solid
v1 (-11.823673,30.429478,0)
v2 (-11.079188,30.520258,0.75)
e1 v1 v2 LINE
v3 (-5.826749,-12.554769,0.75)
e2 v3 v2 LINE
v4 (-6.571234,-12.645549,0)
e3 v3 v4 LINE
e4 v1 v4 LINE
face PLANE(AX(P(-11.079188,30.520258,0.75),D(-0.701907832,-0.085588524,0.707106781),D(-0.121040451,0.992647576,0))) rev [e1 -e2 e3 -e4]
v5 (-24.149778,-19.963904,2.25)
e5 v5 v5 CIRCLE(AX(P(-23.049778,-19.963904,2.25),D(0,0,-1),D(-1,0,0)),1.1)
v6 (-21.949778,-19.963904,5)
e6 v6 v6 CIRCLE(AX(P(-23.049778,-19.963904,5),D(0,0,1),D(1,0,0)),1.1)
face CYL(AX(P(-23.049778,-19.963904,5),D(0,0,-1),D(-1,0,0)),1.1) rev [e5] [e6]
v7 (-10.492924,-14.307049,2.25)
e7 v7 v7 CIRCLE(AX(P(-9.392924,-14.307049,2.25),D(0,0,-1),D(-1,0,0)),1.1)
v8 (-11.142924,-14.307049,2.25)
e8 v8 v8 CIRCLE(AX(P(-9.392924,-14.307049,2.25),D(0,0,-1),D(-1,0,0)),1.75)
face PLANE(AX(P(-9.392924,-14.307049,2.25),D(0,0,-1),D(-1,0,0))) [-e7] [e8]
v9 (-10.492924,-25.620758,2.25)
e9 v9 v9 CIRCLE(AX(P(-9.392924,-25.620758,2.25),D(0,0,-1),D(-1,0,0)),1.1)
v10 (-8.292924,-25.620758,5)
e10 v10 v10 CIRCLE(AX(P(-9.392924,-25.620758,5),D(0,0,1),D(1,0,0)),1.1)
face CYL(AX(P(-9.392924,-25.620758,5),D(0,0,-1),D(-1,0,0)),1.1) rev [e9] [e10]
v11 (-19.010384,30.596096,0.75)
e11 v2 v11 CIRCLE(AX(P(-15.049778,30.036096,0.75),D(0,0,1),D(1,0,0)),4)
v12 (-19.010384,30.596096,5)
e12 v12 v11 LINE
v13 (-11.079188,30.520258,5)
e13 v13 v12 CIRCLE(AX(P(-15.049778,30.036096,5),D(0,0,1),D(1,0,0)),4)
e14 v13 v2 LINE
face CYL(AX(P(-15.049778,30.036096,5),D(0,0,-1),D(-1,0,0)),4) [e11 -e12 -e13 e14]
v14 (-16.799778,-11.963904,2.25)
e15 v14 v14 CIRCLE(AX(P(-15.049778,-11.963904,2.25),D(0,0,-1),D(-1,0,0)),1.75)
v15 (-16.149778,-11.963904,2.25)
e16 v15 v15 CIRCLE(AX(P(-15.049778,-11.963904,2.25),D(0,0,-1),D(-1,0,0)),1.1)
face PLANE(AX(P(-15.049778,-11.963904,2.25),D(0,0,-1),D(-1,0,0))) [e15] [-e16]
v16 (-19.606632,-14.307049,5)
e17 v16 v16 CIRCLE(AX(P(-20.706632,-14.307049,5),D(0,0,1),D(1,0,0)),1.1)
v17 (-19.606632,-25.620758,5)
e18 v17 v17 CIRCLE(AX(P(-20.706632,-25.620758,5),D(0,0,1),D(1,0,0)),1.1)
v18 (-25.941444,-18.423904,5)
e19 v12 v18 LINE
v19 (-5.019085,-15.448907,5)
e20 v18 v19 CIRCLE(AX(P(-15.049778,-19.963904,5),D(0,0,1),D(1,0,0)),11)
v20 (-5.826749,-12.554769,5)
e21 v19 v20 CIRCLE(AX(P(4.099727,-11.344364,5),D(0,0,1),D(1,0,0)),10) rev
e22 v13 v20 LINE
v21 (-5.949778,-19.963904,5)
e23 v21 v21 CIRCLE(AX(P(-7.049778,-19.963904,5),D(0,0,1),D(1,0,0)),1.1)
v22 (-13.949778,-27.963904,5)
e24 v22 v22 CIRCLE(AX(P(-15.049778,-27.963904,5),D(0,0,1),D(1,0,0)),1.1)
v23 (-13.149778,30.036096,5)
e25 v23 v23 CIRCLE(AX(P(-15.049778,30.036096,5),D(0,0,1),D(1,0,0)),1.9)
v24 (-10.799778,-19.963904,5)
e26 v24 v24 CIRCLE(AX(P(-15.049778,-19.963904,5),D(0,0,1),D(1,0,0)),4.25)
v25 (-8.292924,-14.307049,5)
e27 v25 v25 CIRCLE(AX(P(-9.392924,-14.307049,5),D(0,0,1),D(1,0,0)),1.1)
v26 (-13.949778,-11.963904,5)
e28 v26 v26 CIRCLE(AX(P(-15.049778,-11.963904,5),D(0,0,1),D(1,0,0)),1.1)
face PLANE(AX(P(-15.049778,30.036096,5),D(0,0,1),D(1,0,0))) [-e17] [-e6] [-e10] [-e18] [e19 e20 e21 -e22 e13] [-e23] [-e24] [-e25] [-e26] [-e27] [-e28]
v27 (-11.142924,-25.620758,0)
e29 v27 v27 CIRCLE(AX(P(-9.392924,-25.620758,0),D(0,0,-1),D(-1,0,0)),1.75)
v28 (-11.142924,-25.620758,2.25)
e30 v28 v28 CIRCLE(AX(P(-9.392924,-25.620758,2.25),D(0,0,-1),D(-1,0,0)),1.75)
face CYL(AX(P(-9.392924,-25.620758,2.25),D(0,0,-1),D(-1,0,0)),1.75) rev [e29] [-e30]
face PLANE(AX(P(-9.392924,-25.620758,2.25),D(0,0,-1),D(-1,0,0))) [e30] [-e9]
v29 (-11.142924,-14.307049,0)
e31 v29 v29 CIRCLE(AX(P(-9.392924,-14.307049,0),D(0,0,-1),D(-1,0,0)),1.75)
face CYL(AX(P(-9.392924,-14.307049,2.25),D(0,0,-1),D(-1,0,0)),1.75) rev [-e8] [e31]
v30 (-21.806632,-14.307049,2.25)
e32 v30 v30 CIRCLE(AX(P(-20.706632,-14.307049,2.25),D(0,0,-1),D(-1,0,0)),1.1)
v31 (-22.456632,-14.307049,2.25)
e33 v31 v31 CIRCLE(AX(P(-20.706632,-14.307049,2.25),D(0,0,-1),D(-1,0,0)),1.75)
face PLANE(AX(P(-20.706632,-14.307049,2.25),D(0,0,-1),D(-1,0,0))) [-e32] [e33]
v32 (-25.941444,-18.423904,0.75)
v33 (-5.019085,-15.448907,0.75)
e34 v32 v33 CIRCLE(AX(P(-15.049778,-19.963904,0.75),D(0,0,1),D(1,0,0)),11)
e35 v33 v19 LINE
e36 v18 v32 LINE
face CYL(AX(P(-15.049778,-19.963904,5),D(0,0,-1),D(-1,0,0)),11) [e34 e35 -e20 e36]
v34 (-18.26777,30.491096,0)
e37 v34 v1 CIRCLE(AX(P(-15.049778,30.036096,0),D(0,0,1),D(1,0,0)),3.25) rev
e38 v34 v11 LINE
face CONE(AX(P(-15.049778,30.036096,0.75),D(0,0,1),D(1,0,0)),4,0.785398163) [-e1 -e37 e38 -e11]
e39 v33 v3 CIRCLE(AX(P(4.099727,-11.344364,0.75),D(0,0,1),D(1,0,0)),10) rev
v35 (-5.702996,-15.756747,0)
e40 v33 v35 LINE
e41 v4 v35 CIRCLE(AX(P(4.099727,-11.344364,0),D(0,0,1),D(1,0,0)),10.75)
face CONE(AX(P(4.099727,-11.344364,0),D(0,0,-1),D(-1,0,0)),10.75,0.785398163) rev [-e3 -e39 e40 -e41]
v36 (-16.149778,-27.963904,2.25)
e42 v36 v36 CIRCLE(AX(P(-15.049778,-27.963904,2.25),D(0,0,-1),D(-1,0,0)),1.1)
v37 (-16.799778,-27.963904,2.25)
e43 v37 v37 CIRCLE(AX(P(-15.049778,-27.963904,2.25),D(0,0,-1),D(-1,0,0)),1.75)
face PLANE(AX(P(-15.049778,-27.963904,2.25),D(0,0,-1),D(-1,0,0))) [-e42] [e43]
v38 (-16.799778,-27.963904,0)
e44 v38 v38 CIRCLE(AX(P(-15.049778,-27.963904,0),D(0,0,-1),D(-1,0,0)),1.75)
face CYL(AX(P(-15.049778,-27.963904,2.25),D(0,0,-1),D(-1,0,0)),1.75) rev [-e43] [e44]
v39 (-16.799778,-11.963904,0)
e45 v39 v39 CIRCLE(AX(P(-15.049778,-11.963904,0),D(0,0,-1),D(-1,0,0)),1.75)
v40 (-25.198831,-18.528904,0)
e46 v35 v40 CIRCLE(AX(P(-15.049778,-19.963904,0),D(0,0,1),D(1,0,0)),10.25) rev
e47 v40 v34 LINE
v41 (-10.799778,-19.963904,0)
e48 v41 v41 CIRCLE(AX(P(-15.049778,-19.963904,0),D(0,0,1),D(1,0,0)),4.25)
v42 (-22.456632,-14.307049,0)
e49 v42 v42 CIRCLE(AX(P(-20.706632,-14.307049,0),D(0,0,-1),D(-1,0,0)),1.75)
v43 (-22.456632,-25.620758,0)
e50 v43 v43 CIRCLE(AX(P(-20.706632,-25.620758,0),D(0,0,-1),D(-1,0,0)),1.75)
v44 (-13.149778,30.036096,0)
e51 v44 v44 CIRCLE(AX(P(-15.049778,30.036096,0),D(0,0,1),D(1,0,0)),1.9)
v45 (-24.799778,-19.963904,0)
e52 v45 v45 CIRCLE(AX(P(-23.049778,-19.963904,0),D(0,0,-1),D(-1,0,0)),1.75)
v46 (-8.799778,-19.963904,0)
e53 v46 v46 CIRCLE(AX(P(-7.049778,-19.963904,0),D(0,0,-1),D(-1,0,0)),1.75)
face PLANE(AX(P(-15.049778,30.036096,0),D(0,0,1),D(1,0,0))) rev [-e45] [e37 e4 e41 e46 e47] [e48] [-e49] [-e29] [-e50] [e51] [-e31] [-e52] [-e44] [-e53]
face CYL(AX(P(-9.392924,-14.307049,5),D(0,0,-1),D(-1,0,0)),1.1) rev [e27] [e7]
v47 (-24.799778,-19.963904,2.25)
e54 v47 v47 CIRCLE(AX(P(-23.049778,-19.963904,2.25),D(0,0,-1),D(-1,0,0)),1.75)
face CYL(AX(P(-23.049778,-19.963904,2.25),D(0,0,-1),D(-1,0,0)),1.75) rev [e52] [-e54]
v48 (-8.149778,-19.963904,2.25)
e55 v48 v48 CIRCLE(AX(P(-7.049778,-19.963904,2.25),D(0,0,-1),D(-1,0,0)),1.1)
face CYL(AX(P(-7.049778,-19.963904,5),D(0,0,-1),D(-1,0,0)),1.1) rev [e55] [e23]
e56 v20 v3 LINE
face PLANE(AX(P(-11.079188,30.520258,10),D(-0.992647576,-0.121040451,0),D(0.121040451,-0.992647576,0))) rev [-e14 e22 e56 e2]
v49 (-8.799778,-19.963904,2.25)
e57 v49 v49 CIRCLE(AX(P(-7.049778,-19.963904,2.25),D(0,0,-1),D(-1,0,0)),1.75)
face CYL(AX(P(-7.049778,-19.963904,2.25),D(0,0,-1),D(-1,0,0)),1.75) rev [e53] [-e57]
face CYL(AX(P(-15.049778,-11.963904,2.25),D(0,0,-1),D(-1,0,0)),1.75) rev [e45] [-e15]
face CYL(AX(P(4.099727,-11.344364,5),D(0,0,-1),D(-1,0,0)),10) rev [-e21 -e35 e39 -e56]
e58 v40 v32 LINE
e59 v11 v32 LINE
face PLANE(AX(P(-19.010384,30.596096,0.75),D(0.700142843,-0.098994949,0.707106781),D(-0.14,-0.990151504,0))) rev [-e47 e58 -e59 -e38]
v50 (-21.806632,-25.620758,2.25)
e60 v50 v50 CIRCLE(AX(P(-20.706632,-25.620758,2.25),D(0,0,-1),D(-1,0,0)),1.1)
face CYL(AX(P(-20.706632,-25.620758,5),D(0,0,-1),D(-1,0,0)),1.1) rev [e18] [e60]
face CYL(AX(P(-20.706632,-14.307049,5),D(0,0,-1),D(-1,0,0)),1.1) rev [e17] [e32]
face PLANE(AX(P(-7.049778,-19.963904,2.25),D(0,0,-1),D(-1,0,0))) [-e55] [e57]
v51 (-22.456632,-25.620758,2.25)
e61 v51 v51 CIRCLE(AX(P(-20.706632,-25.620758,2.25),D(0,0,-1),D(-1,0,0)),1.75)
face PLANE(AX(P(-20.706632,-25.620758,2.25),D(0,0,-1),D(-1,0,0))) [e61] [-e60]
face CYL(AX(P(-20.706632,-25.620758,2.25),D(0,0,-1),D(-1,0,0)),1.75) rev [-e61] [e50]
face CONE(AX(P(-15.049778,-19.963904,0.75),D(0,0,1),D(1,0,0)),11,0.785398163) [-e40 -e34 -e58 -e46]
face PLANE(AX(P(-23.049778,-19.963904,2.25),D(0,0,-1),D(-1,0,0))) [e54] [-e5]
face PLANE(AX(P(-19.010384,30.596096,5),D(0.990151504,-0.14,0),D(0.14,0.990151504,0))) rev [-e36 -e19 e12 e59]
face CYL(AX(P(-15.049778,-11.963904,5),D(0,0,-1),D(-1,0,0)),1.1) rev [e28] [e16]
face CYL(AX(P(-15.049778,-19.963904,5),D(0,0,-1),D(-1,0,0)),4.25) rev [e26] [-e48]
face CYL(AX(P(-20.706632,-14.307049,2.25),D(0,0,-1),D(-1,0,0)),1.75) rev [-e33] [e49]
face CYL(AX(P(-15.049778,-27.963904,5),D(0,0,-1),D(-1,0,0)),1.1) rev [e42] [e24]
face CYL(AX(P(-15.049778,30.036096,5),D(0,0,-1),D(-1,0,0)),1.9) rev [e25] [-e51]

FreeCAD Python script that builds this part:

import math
import FreeCAD as App
import Part
import Sketcher

V = App.Vector
Q = App.Units.Quantity


def edges_at(feature, points):
    """Names of the edges that pass closest to the given points."""
    edges = feature.Shape.Edges
    near = lambda p: min(range(len(edges)), key=lambda i: edges[i].distToShape(Part.Vertex(*p))[0])
    return sorted({f"Edge{near(p) + 1}" for p in points})

doc = App.newDocument("Part")
body = doc.addObject("PartDesign::Body", "Body")

sketch1 = doc.addObject("Sketcher::SketchObject", "Sketch")
body.addObject(sketch1)
sketch1.AttachmentSupport = (doc.XY_Plane, [""])
sketch1.MapMode = "FlatFace"
sketch1.addGeometry([
    Part.LineSegment(V(-19, 30.6, 0), V(-25.9, -18.4, 0)),
    Part.ArcOfCircle(Part.Circle(V(-15, -20, 0), V(0, 0, 1), 11), math.radians(172), math.radians(368)),
    Part.LineSegment(V(-4.2, -18.4, 0), V(-11.1, 30.6, 0)),
    Part.ArcOfCircle(Part.Circle(V(-15, 30, 0), V(0, 0, 1), 4), math.radians(8), math.radians(172)),
    Part.Circle(V(-20.7, -25.6, 0), V(0, 0, 1), 1.1),
    Part.Circle(V(-23, -20, 0), V(0, 0, 1), 1.1),
    Part.Circle(V(-20.7, -14.3, 0), V(0, 0, 1), 1.1),
    Part.Circle(V(-15, -28, 0), V(0, 0, 1), 1.1),
    Part.Circle(V(-15, -20, 0), V(0, 0, 1), 4.2),
    Part.Circle(V(-15, -12, 0), V(0, 0, 1), 1.1),
    Part.Circle(V(-9.4, -25.6, 0), V(0, 0, 1), 1.1),
    Part.Circle(V(-9.4, -14.3, 0), V(0, 0, 1), 1.1),
    Part.Circle(V(-7, -20, 0), V(0, 0, 1), 1.1),
    Part.Circle(V(-15, 30, 0), V(0, 0, 1), 1.9),
], False)
sketch1.addConstraint([
    Sketcher.Constraint("Tangent", 0, 2, 1, 1),
    Sketcher.Constraint("Tangent", 1, 2, 2, 1),
    Sketcher.Constraint("Tangent", 2, 2, 3, 1),
    Sketcher.Constraint("Tangent", 3, 2, 0, 1),
    Sketcher.Constraint("Coincident", 8, 3, 1, 3),
    Sketcher.Constraint("Coincident", 13, 3, 3, 3),
    Sketcher.Constraint("Equal", 4, 5),
    Sketcher.Constraint("Equal", 5, 6),
    Sketcher.Constraint("Equal", 6, 7),
    Sketcher.Constraint("Equal", 7, 9),
    Sketcher.Constraint("Equal", 9, 10),
    Sketcher.Constraint("Equal", 10, 11),
    Sketcher.Constraint("Equal", 11, 12),
    Sketcher.Constraint("Horizontal", 1, 3, 5, 3),
    Sketcher.Constraint("Horizontal", 4, 3, 10, 3),
    Sketcher.Constraint("Horizontal", 6, 3, 11, 3),
    Sketcher.Constraint("Horizontal", 8, 3, 12, 3),
    Sketcher.Constraint("Horizontal", 0, 2, 1, 2),
    Sketcher.Constraint("Vertical", 4, 3, 6, 3),
    Sketcher.Constraint("Vertical", 3, 3, 7, 3),
    Sketcher.Constraint("Vertical", 8, 3, 9, 3),
    Sketcher.Constraint("Vertical", 10, 3, 11, 3),
    Sketcher.Constraint("Radius", 1, Q("11 mm")),
    Sketcher.Constraint("Radius", 3, Q("4 mm")),
    Sketcher.Constraint("Diameter", 4, Q("2.2 mm")),
    Sketcher.Constraint("Diameter", 8, Q("8.5 mm")),
    Sketcher.Constraint("Diameter", 13, Q("3.8 mm")),
    Sketcher.Constraint("DistanceY", 1, 3, 3, 3, Q("50 mm")),
    Sketcher.Constraint("DistanceX", 5, 3, 1, 3, Q("8 mm")),
    Sketcher.Constraint("DistanceY", 7, 3, 1, 3, Q("8 mm")),
    Sketcher.Constraint("DistanceY", 1, 3, 9, 3, Q("8 mm")),
    Sketcher.Constraint("DistanceX", 1, 3, 12, 3, Q("8 mm")),
    Sketcher.Constraint("DistanceY", 6, 3, -1, 1, Q("14.307049 mm")),
    Sketcher.Constraint("DistanceX", 1, 2, -1, 1, Q("4.158111 mm")),
    Sketcher.Constraint("DistanceY", 4, 3, 6, 3, Q("11.313708 mm")),
    Sketcher.Constraint("DistanceX", 4, 3, 10, 3, Q("11.313708 mm")),
    Sketcher.Constraint("DistanceX", 2, 2, 11, 3, Q("1.696248 mm")),
    Sketcher.Constraint("DistanceY", 1, 3, -1, 1, Q("19.963904 mm")),
])
pad1 = doc.addObject("PartDesign::Pad", "Pad")
body.addObject(pad1)
pad1.Profile = sketch1
pad1.Length = 5

sketch2 = doc.addObject("Sketcher::SketchObject", "Sketch001")
body.addObject(sketch2)
sketch2.AttachmentSupport = (doc.XY_Plane, [""])
sketch2.MapMode = "FlatFace"
sketch2.addGeometry([
    Part.Circle(V(-23, -20, 0), V(0, 0, 1), 1.8),
    Part.Circle(V(-20.7, -25.6, 0), V(0, 0, 1), 1.8),
    Part.Circle(V(-15, -28, 0), V(0, 0, 1), 1.8),
    Part.Circle(V(-9.4, -25.6, 0), V(0, 0, 1), 1.8),
    Part.Circle(V(-7, -20, 0), V(0, 0, 1), 1.8),
    Part.Circle(V(-9.4, -14.3, 0), V(0, 0, 1), 1.8),
    Part.Circle(V(-15, -12, 0), V(0, 0, 1), 1.8),
    Part.Circle(V(-20.7, -14.3, 0), V(0, 0, 1), 1.8),
], False)
sketch2.addConstraint([
    Sketcher.Constraint("Equal", 0, 1),
    Sketcher.Constraint("Equal", 1, 2),
    Sketcher.Constraint("Equal", 2, 3),
    Sketcher.Constraint("Equal", 3, 4),
    Sketcher.Constraint("Equal", 4, 5),
    Sketcher.Constraint("Equal", 5, 6),
    Sketcher.Constraint("Equal", 6, 7),
    Sketcher.Constraint("Horizontal", 1, 3, 3, 3),
    Sketcher.Constraint("Horizontal", 0, 3, 4, 3),
    Sketcher.Constraint("Horizontal", 5, 3, 7, 3),
    Sketcher.Constraint("Vertical", 3, 3, 5, 3),
    Sketcher.Constraint("Vertical", 2, 3, 6, 3),
    Sketcher.Constraint("Vertical", 1, 3, 7, 3),
    Sketcher.Constraint("Diameter", 0, Q("3.5 mm")),
    Sketcher.Constraint("DistanceX", 0, 3, 2, 3, Q("8 mm")),
    Sketcher.Constraint("DistanceY", 2, 3, 0, 3, Q("8 mm")),
    Sketcher.Constraint("DistanceX", 2, 3, 4, 3, Q("8 mm")),
    Sketcher.Constraint("DistanceY", 0, 3, 6, 3, Q("8 mm")),
    Sketcher.Constraint("DistanceY", 5, 3, -1, 1, Q("14.307049 mm")),
    Sketcher.Constraint("DistanceX", 1, 3, 3, 3, Q("11.313708 mm")),
    Sketcher.Constraint("DistanceY", 3, 3, 5, 3, Q("11.313708 mm")),
    Sketcher.Constraint("DistanceX", 0, 3, -1, 1, Q("23.049778 mm")),
    Sketcher.Constraint("DistanceY", 0, 3, -1, 1, Q("19.963904 mm")),
    Sketcher.Constraint("DistanceX", 1, 3, -1, 1, Q("20.706632 mm")),
])
pocket1 = doc.addObject("PartDesign::Pocket", "Pocket")
body.addObject(pocket1)
pocket1.Profile = sketch2
pocket1.Length = 2.25
pocket1.Reversed = True

sketch3 = doc.addObject("Sketcher::SketchObject", "Sketch002")
body.addObject(sketch3)
sketch3.AttachmentSupport = (doc.XY_Plane, [""])
sketch3.MapMode = "FlatFace"
sketch3.addGeometry([
    Part.LineSegment(V(-5.61, -14.31, 0), V(-11.08, 30.52, 0)),
    Part.ArcOfCircle(Part.Circle(V(-15.05, 30.04, 0), V(0, 0, 1), 4), math.radians(6.95), math.radians(8.05)),
    Part.LineSegment(V(-11.09, 30.6, 0), V(-4.16, -18.42, 0)),
    Part.ArcOfCircle(Part.Circle(V(-15.05, -19.96, 0), V(0, 0, 1), 11), math.radians(8), math.radians(31)),
], False)
sketch3.addConstraint([
    Sketcher.Constraint("Tangent", 0, 2, 1, 1),
    Sketcher.Constraint("Tangent", 1, 2, 2, 1),
    Sketcher.Constraint("Tangent", 2, 2, 3, 1),
    Sketcher.Constraint("Coincident", 3, 2, 0, 1),
    Sketcher.Constraint("Radius", 3, Q("11 mm")),
    Sketcher.Constraint("DistanceY", 3, 3, 1, 3, Q("50.000001 mm")),
    Sketcher.Constraint("DistanceY", 1, 3, 1, 2, Q("0.559999 mm")),
    Sketcher.Constraint("DistanceY", 3, 3, 2, 2, Q("1.54 mm")),
    Sketcher.Constraint("DistanceX", 0, 2, 3, 2, Q("5.466801 mm")),
    Sketcher.Constraint("DistanceY", -1, 1, 0, 2, Q("30.520258 mm")),
    Sketcher.Constraint("DistanceX", 1, 2, -1, 1, Q("11.089172 mm")),
])
pocket2 = doc.addObject("PartDesign::Pocket", "Pocket001")
body.addObject(pocket2)
pocket2.Profile = sketch3
pocket2.Length = 10
pocket2.Reversed = True
doc.recompute()

fillet = doc.addObject("PartDesign::Fillet", "Fillet")
body.addObject(fillet)
fillet.Base = (pocket2, edges_at(pocket2, [(-5.612, -14.313, 2.5)]))
fillet.Radius = 10
doc.recompute()

chamfer = doc.addObject("PartDesign::Chamfer", "Chamfer")
body.addObject(chamfer)
chamfer.Base = (fillet, edges_at(fillet, [
    (-8.453, 8.983, 0),
    (-5.532, -14.032, 0),
    (-15.05, -30.964, 0),
    (-22.476, 6.086, 0),
    (-15.05, 34.036, 0),
]))
chamfer.Size = 0.75

doc.recompute()
